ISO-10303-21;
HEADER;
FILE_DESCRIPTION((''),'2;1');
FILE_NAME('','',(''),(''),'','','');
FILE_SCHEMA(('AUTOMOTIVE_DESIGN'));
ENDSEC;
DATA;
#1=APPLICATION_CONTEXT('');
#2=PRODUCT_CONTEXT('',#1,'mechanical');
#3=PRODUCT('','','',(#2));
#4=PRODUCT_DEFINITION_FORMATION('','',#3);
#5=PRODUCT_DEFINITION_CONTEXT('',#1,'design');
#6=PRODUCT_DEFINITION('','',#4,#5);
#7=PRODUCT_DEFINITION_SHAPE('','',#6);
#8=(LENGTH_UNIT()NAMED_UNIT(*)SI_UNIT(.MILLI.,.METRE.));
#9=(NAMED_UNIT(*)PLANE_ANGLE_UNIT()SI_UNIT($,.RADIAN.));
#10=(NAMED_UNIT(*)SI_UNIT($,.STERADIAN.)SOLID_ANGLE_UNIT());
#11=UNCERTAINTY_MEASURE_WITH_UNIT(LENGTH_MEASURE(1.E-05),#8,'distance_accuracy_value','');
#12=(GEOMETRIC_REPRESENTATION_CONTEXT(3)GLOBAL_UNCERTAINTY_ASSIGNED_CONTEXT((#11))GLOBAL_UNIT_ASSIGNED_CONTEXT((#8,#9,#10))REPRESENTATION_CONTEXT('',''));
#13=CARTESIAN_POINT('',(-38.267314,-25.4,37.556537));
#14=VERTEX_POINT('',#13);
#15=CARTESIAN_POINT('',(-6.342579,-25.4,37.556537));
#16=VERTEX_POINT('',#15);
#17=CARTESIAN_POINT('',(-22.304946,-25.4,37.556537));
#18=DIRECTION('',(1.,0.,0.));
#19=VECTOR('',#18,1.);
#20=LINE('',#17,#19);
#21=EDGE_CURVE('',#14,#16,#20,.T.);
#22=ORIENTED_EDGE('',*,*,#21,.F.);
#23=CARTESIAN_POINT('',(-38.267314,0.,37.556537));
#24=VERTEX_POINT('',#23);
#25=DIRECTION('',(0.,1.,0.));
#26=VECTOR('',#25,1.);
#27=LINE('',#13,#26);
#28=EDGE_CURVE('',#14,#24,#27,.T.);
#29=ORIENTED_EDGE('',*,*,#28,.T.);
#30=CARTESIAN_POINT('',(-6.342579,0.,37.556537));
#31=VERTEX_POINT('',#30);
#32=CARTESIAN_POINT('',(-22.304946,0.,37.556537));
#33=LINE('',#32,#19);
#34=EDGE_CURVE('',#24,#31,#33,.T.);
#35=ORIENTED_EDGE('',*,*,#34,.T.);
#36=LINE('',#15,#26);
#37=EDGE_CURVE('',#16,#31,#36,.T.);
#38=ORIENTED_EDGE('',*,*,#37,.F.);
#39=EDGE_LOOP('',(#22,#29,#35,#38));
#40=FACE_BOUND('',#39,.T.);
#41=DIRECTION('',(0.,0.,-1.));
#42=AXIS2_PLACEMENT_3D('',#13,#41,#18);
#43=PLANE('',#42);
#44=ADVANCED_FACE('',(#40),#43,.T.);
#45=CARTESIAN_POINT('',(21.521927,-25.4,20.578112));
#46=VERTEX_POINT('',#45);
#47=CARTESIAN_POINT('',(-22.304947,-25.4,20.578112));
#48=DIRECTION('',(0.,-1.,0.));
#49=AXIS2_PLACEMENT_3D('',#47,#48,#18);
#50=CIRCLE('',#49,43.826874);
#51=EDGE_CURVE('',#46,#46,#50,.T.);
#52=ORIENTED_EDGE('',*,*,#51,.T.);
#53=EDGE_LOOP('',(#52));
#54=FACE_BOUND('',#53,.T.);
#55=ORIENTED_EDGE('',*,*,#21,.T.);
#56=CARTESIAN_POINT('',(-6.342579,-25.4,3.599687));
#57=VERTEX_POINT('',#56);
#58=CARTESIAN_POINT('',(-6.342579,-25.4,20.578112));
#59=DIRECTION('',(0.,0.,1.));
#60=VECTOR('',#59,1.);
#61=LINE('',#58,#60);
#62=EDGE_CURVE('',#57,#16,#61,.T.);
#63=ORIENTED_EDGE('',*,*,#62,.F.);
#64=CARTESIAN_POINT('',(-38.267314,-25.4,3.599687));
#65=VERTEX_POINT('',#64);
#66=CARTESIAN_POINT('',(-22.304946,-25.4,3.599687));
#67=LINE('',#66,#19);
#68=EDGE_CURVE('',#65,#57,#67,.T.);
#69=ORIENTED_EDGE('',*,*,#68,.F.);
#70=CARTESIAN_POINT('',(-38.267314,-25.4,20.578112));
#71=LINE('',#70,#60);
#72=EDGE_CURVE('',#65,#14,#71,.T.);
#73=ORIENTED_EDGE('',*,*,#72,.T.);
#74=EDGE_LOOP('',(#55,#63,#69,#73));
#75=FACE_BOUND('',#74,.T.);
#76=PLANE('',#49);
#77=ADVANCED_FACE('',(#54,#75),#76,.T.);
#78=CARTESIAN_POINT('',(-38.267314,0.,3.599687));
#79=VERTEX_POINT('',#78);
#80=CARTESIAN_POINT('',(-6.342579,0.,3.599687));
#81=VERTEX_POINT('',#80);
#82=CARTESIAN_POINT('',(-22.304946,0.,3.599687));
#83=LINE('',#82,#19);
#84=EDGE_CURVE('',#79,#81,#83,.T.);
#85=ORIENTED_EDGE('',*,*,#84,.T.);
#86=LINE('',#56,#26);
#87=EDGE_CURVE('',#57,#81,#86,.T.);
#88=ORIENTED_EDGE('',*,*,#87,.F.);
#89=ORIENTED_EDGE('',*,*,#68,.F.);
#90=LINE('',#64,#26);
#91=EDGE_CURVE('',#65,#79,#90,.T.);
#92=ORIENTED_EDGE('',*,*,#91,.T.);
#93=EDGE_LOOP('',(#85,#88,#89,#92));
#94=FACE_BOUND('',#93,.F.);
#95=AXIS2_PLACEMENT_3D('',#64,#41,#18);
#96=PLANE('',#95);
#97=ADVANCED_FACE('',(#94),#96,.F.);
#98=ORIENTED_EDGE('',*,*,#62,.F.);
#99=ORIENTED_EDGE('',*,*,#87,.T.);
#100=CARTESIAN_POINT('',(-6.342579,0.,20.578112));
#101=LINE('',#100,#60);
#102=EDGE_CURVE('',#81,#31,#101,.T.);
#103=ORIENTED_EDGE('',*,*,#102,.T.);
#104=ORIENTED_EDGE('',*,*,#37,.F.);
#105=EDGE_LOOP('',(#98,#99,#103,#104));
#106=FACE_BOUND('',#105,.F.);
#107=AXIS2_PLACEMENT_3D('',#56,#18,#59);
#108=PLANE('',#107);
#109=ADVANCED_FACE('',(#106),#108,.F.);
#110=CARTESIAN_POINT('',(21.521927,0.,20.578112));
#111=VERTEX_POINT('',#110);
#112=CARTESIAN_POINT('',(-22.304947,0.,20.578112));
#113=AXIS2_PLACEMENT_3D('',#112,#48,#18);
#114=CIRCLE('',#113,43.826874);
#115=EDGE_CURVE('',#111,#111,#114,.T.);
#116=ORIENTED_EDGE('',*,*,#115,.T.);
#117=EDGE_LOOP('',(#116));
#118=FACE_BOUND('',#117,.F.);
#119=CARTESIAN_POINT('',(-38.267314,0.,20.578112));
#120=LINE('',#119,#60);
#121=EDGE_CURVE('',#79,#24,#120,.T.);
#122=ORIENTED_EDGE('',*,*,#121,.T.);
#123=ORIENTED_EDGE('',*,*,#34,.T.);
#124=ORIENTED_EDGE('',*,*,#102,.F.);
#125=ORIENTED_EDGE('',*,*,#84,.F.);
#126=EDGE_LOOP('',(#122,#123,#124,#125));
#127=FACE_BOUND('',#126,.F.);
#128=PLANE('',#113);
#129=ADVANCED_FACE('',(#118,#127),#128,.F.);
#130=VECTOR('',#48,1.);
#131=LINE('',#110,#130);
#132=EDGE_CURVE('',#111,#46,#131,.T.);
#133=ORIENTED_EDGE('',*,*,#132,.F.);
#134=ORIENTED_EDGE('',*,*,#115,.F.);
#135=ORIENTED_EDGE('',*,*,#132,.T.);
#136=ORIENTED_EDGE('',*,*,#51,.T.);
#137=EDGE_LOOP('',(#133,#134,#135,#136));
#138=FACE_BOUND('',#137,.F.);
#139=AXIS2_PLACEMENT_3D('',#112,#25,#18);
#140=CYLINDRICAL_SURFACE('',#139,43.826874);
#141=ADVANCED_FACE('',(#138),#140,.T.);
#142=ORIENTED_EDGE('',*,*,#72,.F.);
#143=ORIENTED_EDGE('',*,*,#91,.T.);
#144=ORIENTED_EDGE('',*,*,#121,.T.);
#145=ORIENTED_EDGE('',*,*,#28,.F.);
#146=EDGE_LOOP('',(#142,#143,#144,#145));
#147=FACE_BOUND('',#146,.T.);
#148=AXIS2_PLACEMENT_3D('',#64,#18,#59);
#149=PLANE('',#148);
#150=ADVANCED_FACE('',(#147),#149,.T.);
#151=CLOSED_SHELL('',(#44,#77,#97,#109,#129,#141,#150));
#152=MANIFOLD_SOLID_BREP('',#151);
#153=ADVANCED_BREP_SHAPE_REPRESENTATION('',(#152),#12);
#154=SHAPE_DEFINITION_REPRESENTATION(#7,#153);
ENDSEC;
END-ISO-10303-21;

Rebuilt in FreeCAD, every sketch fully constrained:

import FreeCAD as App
import Part
import Sketcher
from FreeCAD import Vector
Q = App.Units.Quantity


def add_polygon(sketch, points):
    """Adds a closed chain of lines whose ends are joined by coincident constraints."""
    first, n = sketch.GeometryCount, len(points)
    for a, b in zip(points, points[1:] + points[:1]):
        sketch.addGeometry(Part.LineSegment(App.Vector(*a, 0), App.Vector(*b, 0)), False)
    for i in range(n):
        sketch.addConstraint(Sketcher.Constraint("Coincident", first + i, 2, first + (i + 1) % n, 1))

doc = App.newDocument("Part")
body = doc.addObject("PartDesign::Body", "Body")

# Sketch on XZ plane
sketch1 = body.newObject("Sketcher::SketchObject", "Sketch")
sketch1.AttachmentSupport = (doc.getObject("XZ_Plane"), [""])
sketch1.MapMode = "FlatFace"
sketch1.addGeometry(Part.Circle(Vector(-22.304947, 20.578112, 0), Vector(0, 0, 1), 43.826874), False)
sketch1.addConstraint([
    Sketcher.Constraint("Diameter", 0, Q("87.653748 mm")),
    Sketcher.Constraint("DistanceX", 0, 3, -1, 1, Q("22.304947 mm")),
    Sketcher.Constraint("DistanceY", -1, 1, 0, 3, Q("20.578112 mm")),
])
pad1 = body.newObject("PartDesign::Pad", "Pad")
pad1.Profile = sketch1
pad1.Length = Q("1 in")

# Sketch on XZ plane
sketch2 = body.newObject("Sketcher::SketchObject", "Sketch001")
sketch2.AttachmentSupport = (doc.getObject("XZ_Plane"), [""])
sketch2.MapMode = "FlatFace"
sketch2.AttachmentOffset = App.Placement(Vector(0, 0, 1 * 25.4), App.Rotation())
add_polygon(sketch2, [(-38.267314, 37.556537), (-38.267314, 3.599687), (-6.342579, 3.599687), (-6.342579, 37.556537)])  # lines 0-3
sketch2.addConstraint([
    Sketcher.Constraint("Vertical", 0),
    Sketcher.Constraint("Horizontal", 1),
    Sketcher.Constraint("Vertical", 2),
    Sketcher.Constraint("Horizontal", 3),
    Sketcher.Constraint("DistanceY", 0, 2, 0, 1, Q("33.95685 mm")),
    Sketcher.Constraint("DistanceX", 1, 1, 1, 2, Q("31.924735 mm")),
    Sketcher.Constraint("DistanceX", 1, 2, -1, 1, Q("6.342579 mm")),
    Sketcher.Constraint("DistanceY", -1, 1, 0, 2, Q("3.599687 mm")),
])
pocket1 = body.newObject("PartDesign::Pocket", "Pocket")
pocket1.Profile = sketch2
pocket1.Length = Q("1 in")

doc.recompute()
